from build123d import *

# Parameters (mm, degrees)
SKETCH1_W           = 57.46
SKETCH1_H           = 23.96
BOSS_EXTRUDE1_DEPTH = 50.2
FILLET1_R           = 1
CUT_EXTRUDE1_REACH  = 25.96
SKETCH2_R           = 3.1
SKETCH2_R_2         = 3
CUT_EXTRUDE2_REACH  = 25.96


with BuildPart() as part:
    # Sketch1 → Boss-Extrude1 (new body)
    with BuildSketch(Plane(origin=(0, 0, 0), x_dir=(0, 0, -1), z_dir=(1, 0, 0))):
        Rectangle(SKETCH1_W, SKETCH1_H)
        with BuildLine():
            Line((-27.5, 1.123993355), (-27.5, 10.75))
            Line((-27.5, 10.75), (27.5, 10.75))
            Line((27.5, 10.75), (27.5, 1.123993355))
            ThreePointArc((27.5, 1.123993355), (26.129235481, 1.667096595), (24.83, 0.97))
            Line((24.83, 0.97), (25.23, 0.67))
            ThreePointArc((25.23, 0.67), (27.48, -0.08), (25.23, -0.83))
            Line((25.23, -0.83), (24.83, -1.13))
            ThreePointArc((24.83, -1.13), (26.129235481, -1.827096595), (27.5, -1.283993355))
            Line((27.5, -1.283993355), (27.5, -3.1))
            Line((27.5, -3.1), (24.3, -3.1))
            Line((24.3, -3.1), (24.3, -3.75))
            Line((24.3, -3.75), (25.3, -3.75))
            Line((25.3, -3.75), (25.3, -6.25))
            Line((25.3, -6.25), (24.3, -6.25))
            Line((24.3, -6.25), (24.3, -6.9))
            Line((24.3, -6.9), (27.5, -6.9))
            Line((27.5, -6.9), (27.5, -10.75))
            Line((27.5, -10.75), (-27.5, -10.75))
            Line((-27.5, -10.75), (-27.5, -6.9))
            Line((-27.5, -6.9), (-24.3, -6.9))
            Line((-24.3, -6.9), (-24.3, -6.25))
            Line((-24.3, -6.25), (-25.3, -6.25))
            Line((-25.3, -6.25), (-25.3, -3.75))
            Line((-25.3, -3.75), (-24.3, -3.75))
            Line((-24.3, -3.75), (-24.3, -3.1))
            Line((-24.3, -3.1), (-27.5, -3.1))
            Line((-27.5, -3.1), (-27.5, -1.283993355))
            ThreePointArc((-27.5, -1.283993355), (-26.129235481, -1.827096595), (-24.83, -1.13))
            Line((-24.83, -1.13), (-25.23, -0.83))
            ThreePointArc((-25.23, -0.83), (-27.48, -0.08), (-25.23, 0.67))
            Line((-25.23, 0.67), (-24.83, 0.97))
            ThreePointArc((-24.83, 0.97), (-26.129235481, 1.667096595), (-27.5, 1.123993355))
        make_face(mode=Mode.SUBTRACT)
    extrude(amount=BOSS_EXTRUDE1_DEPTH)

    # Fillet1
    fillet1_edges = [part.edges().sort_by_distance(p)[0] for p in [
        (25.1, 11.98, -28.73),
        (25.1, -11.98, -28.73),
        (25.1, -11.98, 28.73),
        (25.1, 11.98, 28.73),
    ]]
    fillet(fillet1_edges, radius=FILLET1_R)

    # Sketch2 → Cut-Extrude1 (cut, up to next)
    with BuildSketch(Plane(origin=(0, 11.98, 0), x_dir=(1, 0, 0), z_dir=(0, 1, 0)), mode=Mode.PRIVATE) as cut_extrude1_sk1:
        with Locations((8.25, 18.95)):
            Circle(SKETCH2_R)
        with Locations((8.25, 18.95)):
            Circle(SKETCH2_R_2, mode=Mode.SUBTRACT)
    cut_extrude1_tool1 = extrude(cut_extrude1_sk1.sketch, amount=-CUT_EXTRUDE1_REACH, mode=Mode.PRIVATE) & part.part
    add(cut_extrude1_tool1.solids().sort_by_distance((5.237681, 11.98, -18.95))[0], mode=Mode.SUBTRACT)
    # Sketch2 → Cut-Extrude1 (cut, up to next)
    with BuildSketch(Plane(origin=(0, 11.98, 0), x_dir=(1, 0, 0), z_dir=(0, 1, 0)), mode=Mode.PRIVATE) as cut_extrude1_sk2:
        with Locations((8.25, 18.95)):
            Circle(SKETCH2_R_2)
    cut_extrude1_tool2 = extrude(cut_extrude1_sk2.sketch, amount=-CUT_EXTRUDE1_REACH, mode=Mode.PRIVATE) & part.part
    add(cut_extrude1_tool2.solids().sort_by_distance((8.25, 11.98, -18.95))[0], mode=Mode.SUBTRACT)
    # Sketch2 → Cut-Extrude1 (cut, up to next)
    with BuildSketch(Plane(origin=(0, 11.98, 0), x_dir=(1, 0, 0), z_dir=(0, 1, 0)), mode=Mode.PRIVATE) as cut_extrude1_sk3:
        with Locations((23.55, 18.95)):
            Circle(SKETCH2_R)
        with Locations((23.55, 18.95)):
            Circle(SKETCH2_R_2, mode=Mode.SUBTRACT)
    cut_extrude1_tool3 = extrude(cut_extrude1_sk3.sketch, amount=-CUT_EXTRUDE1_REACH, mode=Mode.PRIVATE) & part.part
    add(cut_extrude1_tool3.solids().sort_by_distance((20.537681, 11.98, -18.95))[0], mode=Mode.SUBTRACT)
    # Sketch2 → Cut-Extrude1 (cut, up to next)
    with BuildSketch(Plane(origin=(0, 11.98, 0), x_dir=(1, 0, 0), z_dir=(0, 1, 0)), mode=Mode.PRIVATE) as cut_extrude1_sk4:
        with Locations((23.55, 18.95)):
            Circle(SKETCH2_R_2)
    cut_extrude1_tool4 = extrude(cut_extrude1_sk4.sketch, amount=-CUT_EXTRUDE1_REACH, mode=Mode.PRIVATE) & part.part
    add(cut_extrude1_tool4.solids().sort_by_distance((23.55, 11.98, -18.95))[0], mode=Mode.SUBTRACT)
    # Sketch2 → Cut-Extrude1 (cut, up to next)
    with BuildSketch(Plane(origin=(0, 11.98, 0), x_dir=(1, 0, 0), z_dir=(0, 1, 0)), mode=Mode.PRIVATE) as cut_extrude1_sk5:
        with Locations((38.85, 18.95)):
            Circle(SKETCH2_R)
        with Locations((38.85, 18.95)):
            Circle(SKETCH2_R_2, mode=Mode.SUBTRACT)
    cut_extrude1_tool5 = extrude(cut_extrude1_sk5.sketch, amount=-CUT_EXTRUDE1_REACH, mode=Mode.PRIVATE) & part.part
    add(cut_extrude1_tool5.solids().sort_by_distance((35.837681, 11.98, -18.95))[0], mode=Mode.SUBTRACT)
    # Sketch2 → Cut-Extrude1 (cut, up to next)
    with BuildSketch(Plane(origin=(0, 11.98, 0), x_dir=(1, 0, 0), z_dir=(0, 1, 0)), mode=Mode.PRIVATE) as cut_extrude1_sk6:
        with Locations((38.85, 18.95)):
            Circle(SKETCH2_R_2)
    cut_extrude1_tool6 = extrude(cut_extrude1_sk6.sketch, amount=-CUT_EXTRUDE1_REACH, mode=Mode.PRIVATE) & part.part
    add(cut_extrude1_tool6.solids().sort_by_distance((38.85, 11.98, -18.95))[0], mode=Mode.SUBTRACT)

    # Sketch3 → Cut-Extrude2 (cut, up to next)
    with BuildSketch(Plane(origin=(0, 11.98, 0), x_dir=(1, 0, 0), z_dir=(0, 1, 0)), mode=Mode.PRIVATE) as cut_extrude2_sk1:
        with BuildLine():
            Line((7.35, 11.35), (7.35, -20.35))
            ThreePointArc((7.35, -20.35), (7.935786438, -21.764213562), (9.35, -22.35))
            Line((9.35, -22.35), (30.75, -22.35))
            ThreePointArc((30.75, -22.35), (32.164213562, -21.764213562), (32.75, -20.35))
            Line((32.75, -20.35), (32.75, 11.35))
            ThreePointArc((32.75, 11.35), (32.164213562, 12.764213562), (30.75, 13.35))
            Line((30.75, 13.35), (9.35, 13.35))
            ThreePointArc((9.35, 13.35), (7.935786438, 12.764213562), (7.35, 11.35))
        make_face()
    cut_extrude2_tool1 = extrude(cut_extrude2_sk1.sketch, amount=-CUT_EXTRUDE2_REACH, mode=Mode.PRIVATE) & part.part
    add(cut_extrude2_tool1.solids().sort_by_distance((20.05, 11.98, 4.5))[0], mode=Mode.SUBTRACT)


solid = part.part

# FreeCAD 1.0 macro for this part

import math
import FreeCAD as App
import Part
import Sketcher

V = App.Vector
Q = App.Units.Quantity


def edges_at(feature, points):
    """Names of the edges that pass closest to the given points."""
    edges = feature.Shape.Edges
    near = lambda p: min(range(len(edges)), key=lambda i: edges[i].distToShape(Part.Vertex(*p))[0])
    return sorted({f"Edge{near(p) + 1}" for p in points})


def add_polygon(sketch, points):
    """Adds a closed chain of lines whose ends are joined by coincident constraints."""
    first, n = sketch.GeometryCount, len(points)
    for a, b in zip(points, points[1:] + points[:1]):
        sketch.addGeometry(Part.LineSegment(App.Vector(*a, 0), App.Vector(*b, 0)), False)
    for i in range(n):
        sketch.addConstraint(Sketcher.Constraint("Coincident", first + i, 2, first + (i + 1) % n, 1))

doc = App.newDocument("Part")
body = doc.addObject("PartDesign::Body", "Body")
body.AllowCompound = True

# Sketch on YZ plane
sketch1 = body.newObject("Sketcher::SketchObject", "Sketch")
sketch1.AttachmentSupport = (doc.getObject("YZ_Plane"), [""])
sketch1.MapMode = "FlatFace"
add_polygon(sketch1, [(11.98, 28.73), (-11.98, 28.73), (-11.98, -28.73), (11.98, -28.73)])  # lines 0-3
sketch1.addGeometry(Part.ArcOfCircle(Part.Circle(V(-0.08, 26.23, 0), V(0, 0, 1), 1.75), math.radians(-53.130102), math.radians(46.5283)), False)  # 4
sketch1.addGeometry(Part.LineSegment(V(1.123993, 27.5, 0), V(10.75, 27.5, 0)), False)  # 5
sketch1.addGeometry(Part.LineSegment(V(10.75, 27.5, 0), V(10.75, -27.5, 0)), False)  # 6
sketch1.addGeometry(Part.LineSegment(V(10.75, -27.5, 0), V(1.123993, -27.5, 0)), False)  # 7
sketch1.addGeometry(Part.ArcOfCircle(Part.Circle(V(-0.08, -26.23, 0), V(0, 0, 1), 1.75), math.radians(-46.5283), math.radians(53.130102)), False)  # 8
sketch1.addGeometry(Part.LineSegment(V(0.97, -24.83, 0), V(0.67, -25.23, 0)), False)  # 9
sketch1.addGeometry(Part.ArcOfCircle(Part.Circle(V(-0.08, -26.23, 0), V(0, 0, 1), 1.25), math.radians(126.869898), math.radians(413.130102)), False)  # 10
sketch1.addGeometry(Part.LineSegment(V(-0.83, -25.23, 0), V(-1.13, -24.83, 0)), False)  # 11
sketch1.addGeometry(Part.ArcOfCircle(Part.Circle(V(-0.08, -26.23, 0), V(0, 0, 1), 1.75), math.radians(126.869898), math.radians(226.5283)), False)  # 12
sketch1.addGeometry(Part.LineSegment(V(-1.283993, -27.5, 0), V(-3.1, -27.5, 0)), False)  # 13
sketch1.addGeometry(Part.LineSegment(V(-3.1, -27.5, 0), V(-3.1, -24.3, 0)), False)  # 14
sketch1.addGeometry(Part.LineSegment(V(-3.1, -24.3, 0), V(-3.75, -24.3, 0)), False)  # 15
sketch1.addGeometry(Part.LineSegment(V(-3.75, -24.3, 0), V(-3.75, -25.3, 0)), False)  # 16
sketch1.addGeometry(Part.LineSegment(V(-3.75, -25.3, 0), V(-6.25, -25.3, 0)), False)  # 17
sketch1.addGeometry(Part.LineSegment(V(-6.25, -25.3, 0), V(-6.25, -24.3, 0)), False)  # 18
sketch1.addGeometry(Part.LineSegment(V(-6.25, -24.3, 0), V(-6.9, -24.3, 0)), False)  # 19
sketch1.addGeometry(Part.LineSegment(V(-6.9, -24.3, 0), V(-6.9, -27.5, 0)), False)  # 20
sketch1.addGeometry(Part.LineSegment(V(-6.9, -27.5, 0), V(-10.75, -27.5, 0)), False)  # 21
sketch1.addGeometry(Part.LineSegment(V(-10.75, -27.5, 0), V(-10.75, 27.5, 0)), False)  # 22
sketch1.addGeometry(Part.LineSegment(V(-10.75, 27.5, 0), V(-6.9, 27.5, 0)), False)  # 23
sketch1.addGeometry(Part.LineSegment(V(-6.9, 27.5, 0), V(-6.9, 24.3, 0)), False)  # 24
sketch1.addGeometry(Part.LineSegment(V(-6.9, 24.3, 0), V(-6.25, 24.3, 0)), False)  # 25
sketch1.addGeometry(Part.LineSegment(V(-6.25, 24.3, 0), V(-6.25, 25.3, 0)), False)  # 26
sketch1.addGeometry(Part.LineSegment(V(-6.25, 25.3, 0), V(-3.75, 25.3, 0)), False)  # 27
sketch1.addGeometry(Part.LineSegment(V(-3.75, 25.3, 0), V(-3.75, 24.3, 0)), False)  # 28
sketch1.addGeometry(Part.LineSegment(V(-3.75, 24.3, 0), V(-3.1, 24.3, 0)), False)  # 29
sketch1.addGeometry(Part.LineSegment(V(-3.1, 24.3, 0), V(-3.1, 27.5, 0)), False)  # 30
sketch1.addGeometry(Part.LineSegment(V(-3.1, 27.5, 0), V(-1.283993, 27.5, 0)), False)  # 31
sketch1.addGeometry(Part.ArcOfCircle(Part.Circle(V(-0.08, 26.23, 0), V(0, 0, 1), 1.75), math.radians(133.4717), math.radians(233.130102)), False)  # 32
sketch1.addGeometry(Part.LineSegment(V(-1.13, 24.83, 0), V(-0.83, 25.23, 0)), False)  # 33
sketch1.addGeometry(Part.ArcOfCircle(Part.Circle(V(-0.08, 26.23, 0), V(0, 0, 1), 1.25), math.radians(-53.130102), math.radians(233.130102)), False)  # 34
sketch1.addGeometry(Part.LineSegment(V(0.67, 25.23, 0), V(0.97, 24.83, 0)), False)  # 35
sketch1.addConstraint([
    Sketcher.Constraint("Coincident", 4, 2, 5, 1),
    Sketcher.Constraint("Coincident", 5, 2, 6, 1),
    Sketcher.Constraint("Coincident", 6, 2, 7, 1),
    Sketcher.Constraint("Coincident", 7, 2, 8, 1),
    Sketcher.Constraint("Coincident", 8, 2, 9, 1),
    Sketcher.Constraint("Coincident", 9, 2, 10, 2),
    Sketcher.Constraint("Coincident", 10, 1, 11, 1),
    Sketcher.Constraint("Coincident", 11, 2, 12, 1),
    Sketcher.Constraint("Coincident", 12, 2, 13, 1),
    Sketcher.Constraint("Coincident", 13, 2, 14, 1),
    Sketcher.Constraint("Coincident", 14, 2, 15, 1),
    Sketcher.Constraint("Coincident", 15, 2, 16, 1),
    Sketcher.Constraint("Coincident", 16, 2, 17, 1),
    Sketcher.Constraint("Coincident", 17, 2, 18, 1),
    Sketcher.Constraint("Coincident", 18, 2, 19, 1),
    Sketcher.Constraint("Coincident", 19, 2, 20, 1),
    Sketcher.Constraint("Coincident", 20, 2, 21, 1),
    Sketcher.Constraint("Coincident", 21, 2, 22, 1),
    Sketcher.Constraint("Coincident", 22, 2, 23, 1),
    Sketcher.Constraint("Coincident", 23, 2, 24, 1),
    Sketcher.Constraint("Coincident", 24, 2, 25, 1),
    Sketcher.Constraint("Coincident", 25, 2, 26, 1),
    Sketcher.Constraint("Coincident", 26, 2, 27, 1),
    Sketcher.Constraint("Coincident", 27, 2, 28, 1),
    Sketcher.Constraint("Coincident", 28, 2, 29, 1),
    Sketcher.Constraint("Coincident", 29, 2, 30, 1),
    Sketcher.Constraint("Coincident", 30, 2, 31, 1),
    Sketcher.Constraint("Coincident", 31, 2, 32, 1),
    Sketcher.Constraint("Coincident", 32, 2, 33, 1),
    Sketcher.Constraint("Coincident", 33, 2, 34, 2),
    Sketcher.Constraint("Coincident", 34, 1, 35, 1),
    Sketcher.Constraint("Coincident", 35, 2, 4, 1),
    Sketcher.Constraint("Horizontal", 0),
    Sketcher.Constraint("Vertical", 1),
    Sketcher.Constraint("Horizontal", 2),
    Sketcher.Constraint("Vertical", 3),
    Sketcher.Constraint("Horizontal", 5),
    Sketcher.Constraint("Vertical", 6),
    Sketcher.Constraint("Horizontal", 7),
    Sketcher.Constraint("Horizontal", 13),
    Sketcher.Constraint("Vertical", 14),
    Sketcher.Constraint("Horizontal", 15),
    Sketcher.Constraint("Vertical", 16),
    Sketcher.Constraint("Horizontal", 17),
    Sketcher.Constraint("Vertical", 18),
    Sketcher.Constraint("Horizontal", 19),
    Sketcher.Constraint("Vertical", 20),
    Sketcher.Constraint("Horizontal", 21),
    Sketcher.Constraint("Vertical", 22),
    Sketcher.Constraint("Horizontal", 23),
    Sketcher.Constraint("Vertical", 24),
    Sketcher.Constraint("Horizontal", 25),
    Sketcher.Constraint("Vertical", 26),
    Sketcher.Constraint("Horizontal", 27),
    Sketcher.Constraint("Vertical", 28),
    Sketcher.Constraint("Horizontal", 29),
    Sketcher.Constraint("Vertical", 30),
    Sketcher.Constraint("Horizontal", 31),
    Sketcher.Constraint("Coincident", 10, 3, 8, 3),
    Sketcher.Constraint("Coincident", 12, 3, 8, 3),
    Sketcher.Constraint("Coincident", 32, 3, 4, 3),
    Sketcher.Constraint("Coincident", 34, 3, 4, 3),
    Sketcher.Constraint("Equal", 4, 8),
    Sketcher.Constraint("Equal", 8, 12),
    Sketcher.Constraint("Equal", 12, 32),
    Sketcher.Constraint("Equal", 10, 34),
    Sketcher.Constraint("Symmetric", 0, 2, 2, 2, -1, 1),
    Sketcher.Constraint("Symmetric", 5, 2, 21, 2, -1, 1),
    Sketcher.Constraint("Symmetric", 4, 3, 8, 3, -1),
    Sketcher.Constraint("Symmetric", 20, 2, 23, 2, -1),
    Sketcher.Constraint("Symmetric", 18, 2, 25, 2, -1),
    Sketcher.Constraint("Symmetric", 16, 2, 27, 2, -1),
    Sketcher.Constraint("Symmetric", 14, 2, 29, 2, -1),
    Sketcher.Constraint("Parallel", 9, 33),
    Sketcher.Constraint("Parallel", 11, 35),
    Sketcher.Constraint("Horizontal", 9, 2, 10, 1),
    Sketcher.Constraint("Horizontal", 8, 2, 11, 2),
    Sketcher.Constraint("Horizontal", 7, 2, 12, 2),
    Sketcher.Constraint("Horizontal", 15, 2, 18, 2),
    Sketcher.Constraint("Horizontal", 13, 2, 20, 2),
    Sketcher.Constraint("Horizontal", 23, 2, 30, 2),
    Sketcher.Constraint("Horizontal", 33, 2, 34, 1),
    Sketcher.Constraint("Vertical", 11, 2, 32, 2),
    Sketcher.Constraint("Equal", 15, 19),
    Sketcher.Constraint("DistanceY", 6, 2, 6, 1, Q("55 mm")),
    Sketcher.Constraint("DistanceY", 16, 2, 16, 1, Q("1 mm")),
    Sketcher.Constraint("Radius", 4, Q("1.75 mm")),
    Sketcher.Constraint("Radius", 10, Q("1.25 mm")),
    Sketcher.Constraint("DistanceX", 17, 2, 17, 1, Q("2.5 mm")),
    Sketcher.Constraint("DistanceY", 14, 1, 14, 2, Q("3.2 mm")),
    Sketcher.Constraint("DistanceY", 8, 3, 9, 2, Q("1 mm")),
    Sketcher.Constraint("DistanceX", 0, 2, 0, 1, Q("23.96 mm")),
    Sketcher.Constraint("DistanceX", 15, 2, 15, 1, Q("0.65 mm")),
    Sketcher.Constraint("DistanceX", 21, 2, 21, 1, Q("3.85 mm")),
    Sketcher.Constraint("DistanceY", 1, 2, 1, 1, Q("57.46 mm")),
    Sketcher.Constraint("DistanceX", 13, 2, -1, 1, Q("3.1 mm")),
    Sketcher.Constraint("DistanceX", 0, 2, 32, 3, Q("11.9 mm")),
    Sketcher.Constraint("DistanceY", 32, 3, 0, 2, Q("2.5 mm")),
    Sketcher.Constraint("DistanceY", 8, 3, 8, 2, Q("1.4 mm")),
])
pad1 = body.newObject("PartDesign::Pad", "Pad")
pad1.Profile = sketch1
pad1.Length = 50.2
doc.recompute()

fillet = body.newObject("PartDesign::Fillet", "Fillet")
fillet.Base = (pad1, edges_at(pad1, [
    (25.1, 11.98, -28.73),
    (25.1, -11.98, -28.73),
    (25.1, -11.98, 28.73),
    (25.1, 11.98, 28.73),
]))
fillet.Radius = 1

# Sketch on XZ plane
sketch2 = body.newObject("Sketcher::SketchObject", "Sketch001")
sketch2.AttachmentSupport = (doc.getObject("XZ_Plane"), [""])
sketch2.MapMode = "FlatFace"
sketch2.AttachmentOffset = App.Placement(V(0, 0, -11.98), App.Rotation())
sketch2.addGeometry([
    Part.Circle(V(8.25, -18.95, 0), V(0, 0, 1), 3.1),
    Part.Circle(V(8.25, -18.95, 0), V(0, 0, 1), 3),
], False)
sketch2.addConstraint([
    Sketcher.Constraint("Coincident", 1, 3, 0, 3),
    Sketcher.Constraint("Diameter", 1, Q("6 mm")),
    Sketcher.Constraint("Diameter", 0, Q("6.2 mm")),
    Sketcher.Constraint("DistanceX", -1, 1, 0, 3, Q("8.25 mm")),
    Sketcher.Constraint("DistanceY", 0, 3, -1, 1, Q("18.95 mm")),
])
pocket1 = body.newObject("PartDesign::Pocket", "Pocket")
pocket1.Profile = sketch2
pocket1.Type = "UpToFirst"
pocket1.Reversed = True

# Sketch on XZ plane
sketch3 = body.newObject("Sketcher::SketchObject", "Sketch002")
sketch3.AttachmentSupport = (doc.getObject("XZ_Plane"), [""])
sketch3.MapMode = "FlatFace"
sketch3.AttachmentOffset = App.Placement(V(0, 0, -11.98), App.Rotation())
sketch3.addGeometry(Part.Circle(V(8.25, -18.95, 0), V(0, 0, 1), 3), False)
sketch3.addConstraint([
    Sketcher.Constraint("Diameter", 0, Q("6 mm")),
    Sketcher.Constraint("DistanceX", -1, 1, 0, 3, Q("8.25 mm")),
    Sketcher.Constraint("DistanceY", 0, 3, -1, 1, Q("18.95 mm")),
])
pocket2 = body.newObject("PartDesign::Pocket", "Pocket001")
pocket2.Profile = sketch3
pocket2.Type = "UpToFirst"
pocket2.Reversed = True

# Sketch on XZ plane
sketch4 = body.newObject("Sketcher::SketchObject", "Sketch003")
sketch4.AttachmentSupport = (doc.getObject("XZ_Plane"), [""])
sketch4.MapMode = "FlatFace"
sketch4.AttachmentOffset = App.Placement(V(0, 0, -11.98), App.Rotation())
sketch4.addGeometry([
    Part.Circle(V(23.55, -18.95, 0), V(0, 0, 1), 3.1),
    Part.Circle(V(23.55, -18.95, 0), V(0, 0, 1), 3),
], False)
sketch4.addConstraint([
    Sketcher.Constraint("Coincident", 1, 3, 0, 3),
    Sketcher.Constraint("Diameter", 1, Q("6 mm")),
    Sketcher.Constraint("Diameter", 0, Q("6.2 mm")),
    Sketcher.Constraint("DistanceX", -1, 1, 0, 3, Q("23.55 mm")),
    Sketcher.Constraint("DistanceY", 0, 3, -1, 1, Q("18.95 mm")),
])
pocket3 = body.newObject("PartDesign::Pocket", "Pocket002")
pocket3.Profile = sketch4
pocket3.Type = "UpToFirst"
pocket3.Reversed = True

# Sketch on XZ plane
sketch5 = body.newObject("Sketcher::SketchObject", "Sketch004")
sketch5.AttachmentSupport = (doc.getObject("XZ_Plane"), [""])
sketch5.MapMode = "FlatFace"
sketch5.AttachmentOffset = App.Placement(V(0, 0, -11.98), App.Rotation())
sketch5.addGeometry(Part.Circle(V(23.55, -18.95, 0), V(0, 0, 1), 3), False)
sketch5.addConstraint([
    Sketcher.Constraint("Diameter", 0, Q("6 mm")),
    Sketcher.Constraint("DistanceX", -1, 1, 0, 3, Q("23.55 mm")),
    Sketcher.Constraint("DistanceY", 0, 3, -1, 1, Q("18.95 mm")),
])
pocket4 = body.newObject("PartDesign::Pocket", "Pocket003")
pocket4.Profile = sketch5
pocket4.Type = "UpToFirst"
pocket4.Reversed = True

# Sketch on XZ plane
sketch6 = body.newObject("Sketcher::SketchObject", "Sketch005")
sketch6.AttachmentSupport = (doc.getObject("XZ_Plane"), [""])
sketch6.MapMode = "FlatFace"
sketch6.AttachmentOffset = App.Placement(V(0, 0, -11.98), App.Rotation())
sketch6.addGeometry([
    Part.Circle(V(38.85, -18.95, 0), V(0, 0, 1), 3.1),
    Part.Circle(V(38.85, -18.95, 0), V(0, 0, 1), 3),
], False)
sketch6.addConstraint([
    Sketcher.Constraint("Coincident", 1, 3, 0, 3),
    Sketcher.Constraint("Diameter", 1, Q("6 mm")),
    Sketcher.Constraint("Diameter", 0, Q("6.2 mm")),
    Sketcher.Constraint("DistanceX", -1, 1, 0, 3, Q("38.85 mm")),
    Sketcher.Constraint("DistanceY", 0, 3, -1, 1, Q("18.95 mm")),
])
pocket5 = body.newObject("PartDesign::Pocket", "Pocket004")
pocket5.Profile = sketch6
pocket5.Type = "UpToFirst"
pocket5.Reversed = True

# Sketch on XZ plane
sketch7 = body.newObject("Sketcher::SketchObject", "Sketch006")
sketch7.AttachmentSupport = (doc.getObject("XZ_Plane"), [""])
sketch7.MapMode = "FlatFace"
sketch7.AttachmentOffset = App.Placement(V(0, 0, -11.98), App.Rotation())
sketch7.addGeometry(Part.Circle(V(38.85, -18.95, 0), V(0, 0, 1), 3), False)
sketch7.addConstraint([
    Sketcher.Constraint("Diameter", 0, Q("6 mm")),
    Sketcher.Constraint("DistanceX", -1, 1, 0, 3, Q("38.85 mm")),
    Sketcher.Constraint("DistanceY", 0, 3, -1, 1, Q("18.95 mm")),
])
pocket6 = body.newObject("PartDesign::Pocket", "Pocket005")
pocket6.Profile = sketch7
pocket6.Type = "UpToFirst"
pocket6.Reversed = True

# Sketch on XZ plane
sketch8 = body.newObject("Sketcher::SketchObject", "Sketch007")
sketch8.AttachmentSupport = (doc.getObject("XZ_Plane"), [""])
sketch8.MapMode = "FlatFace"
sketch8.AttachmentOffset = App.Placement(V(0, 0, -11.98), App.Rotation())
sketch8.addGeometry([
    Part.LineSegment(V(7.35, -11.35, 0), V(7.35, 20.35, 0)),  # 0
    Part.ArcOfCircle(Part.Circle(V(9.35, 20.35, 0), V(0, 0, 1), 2), math.radians(90), math.radians(180)),  # 1
    Part.LineSegment(V(9.35, 22.35, 0), V(30.75, 22.35, 0)),  # 2
    Part.ArcOfCircle(Part.Circle(V(30.75, 20.35, 0), V(0, 0, 1), 2), math.radians(0), math.radians(90)),  # 3
    Part.LineSegment(V(32.75, 20.35, 0), V(32.75, -11.35, 0)),  # 4
    Part.ArcOfCircle(Part.Circle(V(30.75, -11.35, 0), V(0, 0, 1), 2), math.radians(-90), math.radians(0)),  # 5
    Part.LineSegment(V(30.75, -13.35, 0), V(9.35, -13.35, 0)),  # 6
    Part.ArcOfCircle(Part.Circle(V(9.35, -11.35, 0), V(0, 0, 1), 2), math.radians(-180), math.radians(-90)),  # 7
], False)
sketch8.addConstraint([
    Sketcher.Constraint("Tangent", 0, 2, 1, 2),
    Sketcher.Constraint("Tangent", 1, 1, 2, 1),
    Sketcher.Constraint("Tangent", 2, 2, 3, 2),
    Sketcher.Constraint("Tangent", 3, 1, 4, 1),
    Sketcher.Constraint("Tangent", 4, 2, 5, 2),
    Sketcher.Constraint("Tangent", 5, 1, 6, 1),
    Sketcher.Constraint("Tangent", 6, 2, 7, 2),
    Sketcher.Constraint("Tangent", 7, 1, 0, 1),
    Sketcher.Constraint("Vertical", 0),
    Sketcher.Constraint("Horizontal", 2),
    Sketcher.Constraint("Vertical", 4),
    Sketcher.Constraint("Horizontal", 6),
    Sketcher.Constraint("Equal", 1, 3),
    Sketcher.Constraint("Equal", 3, 5),
    Sketcher.Constraint("Equal", 5, 7),
    Sketcher.Constraint("Radius", 1, Q("2 mm")),
    Sketcher.Constraint("DistanceX", 2, 1, 2, 2, Q("21.4 mm")),
    Sketcher.Constraint("DistanceY", 0, 1, 0, 2, Q("31.7 mm")),
    Sketcher.Constraint("DistanceX", -1, 1, 1, 3, Q("9.35 mm")),
    Sketcher.Constraint("DistanceY", -1, 1, 1, 3, Q("20.35 mm")),
])
pocket7 = body.newObject("PartDesign::Pocket", "Pocket006")
pocket7.Profile = sketch8
pocket7.Type = "UpToFirst"
pocket7.Reversed = True

doc.recompute()
